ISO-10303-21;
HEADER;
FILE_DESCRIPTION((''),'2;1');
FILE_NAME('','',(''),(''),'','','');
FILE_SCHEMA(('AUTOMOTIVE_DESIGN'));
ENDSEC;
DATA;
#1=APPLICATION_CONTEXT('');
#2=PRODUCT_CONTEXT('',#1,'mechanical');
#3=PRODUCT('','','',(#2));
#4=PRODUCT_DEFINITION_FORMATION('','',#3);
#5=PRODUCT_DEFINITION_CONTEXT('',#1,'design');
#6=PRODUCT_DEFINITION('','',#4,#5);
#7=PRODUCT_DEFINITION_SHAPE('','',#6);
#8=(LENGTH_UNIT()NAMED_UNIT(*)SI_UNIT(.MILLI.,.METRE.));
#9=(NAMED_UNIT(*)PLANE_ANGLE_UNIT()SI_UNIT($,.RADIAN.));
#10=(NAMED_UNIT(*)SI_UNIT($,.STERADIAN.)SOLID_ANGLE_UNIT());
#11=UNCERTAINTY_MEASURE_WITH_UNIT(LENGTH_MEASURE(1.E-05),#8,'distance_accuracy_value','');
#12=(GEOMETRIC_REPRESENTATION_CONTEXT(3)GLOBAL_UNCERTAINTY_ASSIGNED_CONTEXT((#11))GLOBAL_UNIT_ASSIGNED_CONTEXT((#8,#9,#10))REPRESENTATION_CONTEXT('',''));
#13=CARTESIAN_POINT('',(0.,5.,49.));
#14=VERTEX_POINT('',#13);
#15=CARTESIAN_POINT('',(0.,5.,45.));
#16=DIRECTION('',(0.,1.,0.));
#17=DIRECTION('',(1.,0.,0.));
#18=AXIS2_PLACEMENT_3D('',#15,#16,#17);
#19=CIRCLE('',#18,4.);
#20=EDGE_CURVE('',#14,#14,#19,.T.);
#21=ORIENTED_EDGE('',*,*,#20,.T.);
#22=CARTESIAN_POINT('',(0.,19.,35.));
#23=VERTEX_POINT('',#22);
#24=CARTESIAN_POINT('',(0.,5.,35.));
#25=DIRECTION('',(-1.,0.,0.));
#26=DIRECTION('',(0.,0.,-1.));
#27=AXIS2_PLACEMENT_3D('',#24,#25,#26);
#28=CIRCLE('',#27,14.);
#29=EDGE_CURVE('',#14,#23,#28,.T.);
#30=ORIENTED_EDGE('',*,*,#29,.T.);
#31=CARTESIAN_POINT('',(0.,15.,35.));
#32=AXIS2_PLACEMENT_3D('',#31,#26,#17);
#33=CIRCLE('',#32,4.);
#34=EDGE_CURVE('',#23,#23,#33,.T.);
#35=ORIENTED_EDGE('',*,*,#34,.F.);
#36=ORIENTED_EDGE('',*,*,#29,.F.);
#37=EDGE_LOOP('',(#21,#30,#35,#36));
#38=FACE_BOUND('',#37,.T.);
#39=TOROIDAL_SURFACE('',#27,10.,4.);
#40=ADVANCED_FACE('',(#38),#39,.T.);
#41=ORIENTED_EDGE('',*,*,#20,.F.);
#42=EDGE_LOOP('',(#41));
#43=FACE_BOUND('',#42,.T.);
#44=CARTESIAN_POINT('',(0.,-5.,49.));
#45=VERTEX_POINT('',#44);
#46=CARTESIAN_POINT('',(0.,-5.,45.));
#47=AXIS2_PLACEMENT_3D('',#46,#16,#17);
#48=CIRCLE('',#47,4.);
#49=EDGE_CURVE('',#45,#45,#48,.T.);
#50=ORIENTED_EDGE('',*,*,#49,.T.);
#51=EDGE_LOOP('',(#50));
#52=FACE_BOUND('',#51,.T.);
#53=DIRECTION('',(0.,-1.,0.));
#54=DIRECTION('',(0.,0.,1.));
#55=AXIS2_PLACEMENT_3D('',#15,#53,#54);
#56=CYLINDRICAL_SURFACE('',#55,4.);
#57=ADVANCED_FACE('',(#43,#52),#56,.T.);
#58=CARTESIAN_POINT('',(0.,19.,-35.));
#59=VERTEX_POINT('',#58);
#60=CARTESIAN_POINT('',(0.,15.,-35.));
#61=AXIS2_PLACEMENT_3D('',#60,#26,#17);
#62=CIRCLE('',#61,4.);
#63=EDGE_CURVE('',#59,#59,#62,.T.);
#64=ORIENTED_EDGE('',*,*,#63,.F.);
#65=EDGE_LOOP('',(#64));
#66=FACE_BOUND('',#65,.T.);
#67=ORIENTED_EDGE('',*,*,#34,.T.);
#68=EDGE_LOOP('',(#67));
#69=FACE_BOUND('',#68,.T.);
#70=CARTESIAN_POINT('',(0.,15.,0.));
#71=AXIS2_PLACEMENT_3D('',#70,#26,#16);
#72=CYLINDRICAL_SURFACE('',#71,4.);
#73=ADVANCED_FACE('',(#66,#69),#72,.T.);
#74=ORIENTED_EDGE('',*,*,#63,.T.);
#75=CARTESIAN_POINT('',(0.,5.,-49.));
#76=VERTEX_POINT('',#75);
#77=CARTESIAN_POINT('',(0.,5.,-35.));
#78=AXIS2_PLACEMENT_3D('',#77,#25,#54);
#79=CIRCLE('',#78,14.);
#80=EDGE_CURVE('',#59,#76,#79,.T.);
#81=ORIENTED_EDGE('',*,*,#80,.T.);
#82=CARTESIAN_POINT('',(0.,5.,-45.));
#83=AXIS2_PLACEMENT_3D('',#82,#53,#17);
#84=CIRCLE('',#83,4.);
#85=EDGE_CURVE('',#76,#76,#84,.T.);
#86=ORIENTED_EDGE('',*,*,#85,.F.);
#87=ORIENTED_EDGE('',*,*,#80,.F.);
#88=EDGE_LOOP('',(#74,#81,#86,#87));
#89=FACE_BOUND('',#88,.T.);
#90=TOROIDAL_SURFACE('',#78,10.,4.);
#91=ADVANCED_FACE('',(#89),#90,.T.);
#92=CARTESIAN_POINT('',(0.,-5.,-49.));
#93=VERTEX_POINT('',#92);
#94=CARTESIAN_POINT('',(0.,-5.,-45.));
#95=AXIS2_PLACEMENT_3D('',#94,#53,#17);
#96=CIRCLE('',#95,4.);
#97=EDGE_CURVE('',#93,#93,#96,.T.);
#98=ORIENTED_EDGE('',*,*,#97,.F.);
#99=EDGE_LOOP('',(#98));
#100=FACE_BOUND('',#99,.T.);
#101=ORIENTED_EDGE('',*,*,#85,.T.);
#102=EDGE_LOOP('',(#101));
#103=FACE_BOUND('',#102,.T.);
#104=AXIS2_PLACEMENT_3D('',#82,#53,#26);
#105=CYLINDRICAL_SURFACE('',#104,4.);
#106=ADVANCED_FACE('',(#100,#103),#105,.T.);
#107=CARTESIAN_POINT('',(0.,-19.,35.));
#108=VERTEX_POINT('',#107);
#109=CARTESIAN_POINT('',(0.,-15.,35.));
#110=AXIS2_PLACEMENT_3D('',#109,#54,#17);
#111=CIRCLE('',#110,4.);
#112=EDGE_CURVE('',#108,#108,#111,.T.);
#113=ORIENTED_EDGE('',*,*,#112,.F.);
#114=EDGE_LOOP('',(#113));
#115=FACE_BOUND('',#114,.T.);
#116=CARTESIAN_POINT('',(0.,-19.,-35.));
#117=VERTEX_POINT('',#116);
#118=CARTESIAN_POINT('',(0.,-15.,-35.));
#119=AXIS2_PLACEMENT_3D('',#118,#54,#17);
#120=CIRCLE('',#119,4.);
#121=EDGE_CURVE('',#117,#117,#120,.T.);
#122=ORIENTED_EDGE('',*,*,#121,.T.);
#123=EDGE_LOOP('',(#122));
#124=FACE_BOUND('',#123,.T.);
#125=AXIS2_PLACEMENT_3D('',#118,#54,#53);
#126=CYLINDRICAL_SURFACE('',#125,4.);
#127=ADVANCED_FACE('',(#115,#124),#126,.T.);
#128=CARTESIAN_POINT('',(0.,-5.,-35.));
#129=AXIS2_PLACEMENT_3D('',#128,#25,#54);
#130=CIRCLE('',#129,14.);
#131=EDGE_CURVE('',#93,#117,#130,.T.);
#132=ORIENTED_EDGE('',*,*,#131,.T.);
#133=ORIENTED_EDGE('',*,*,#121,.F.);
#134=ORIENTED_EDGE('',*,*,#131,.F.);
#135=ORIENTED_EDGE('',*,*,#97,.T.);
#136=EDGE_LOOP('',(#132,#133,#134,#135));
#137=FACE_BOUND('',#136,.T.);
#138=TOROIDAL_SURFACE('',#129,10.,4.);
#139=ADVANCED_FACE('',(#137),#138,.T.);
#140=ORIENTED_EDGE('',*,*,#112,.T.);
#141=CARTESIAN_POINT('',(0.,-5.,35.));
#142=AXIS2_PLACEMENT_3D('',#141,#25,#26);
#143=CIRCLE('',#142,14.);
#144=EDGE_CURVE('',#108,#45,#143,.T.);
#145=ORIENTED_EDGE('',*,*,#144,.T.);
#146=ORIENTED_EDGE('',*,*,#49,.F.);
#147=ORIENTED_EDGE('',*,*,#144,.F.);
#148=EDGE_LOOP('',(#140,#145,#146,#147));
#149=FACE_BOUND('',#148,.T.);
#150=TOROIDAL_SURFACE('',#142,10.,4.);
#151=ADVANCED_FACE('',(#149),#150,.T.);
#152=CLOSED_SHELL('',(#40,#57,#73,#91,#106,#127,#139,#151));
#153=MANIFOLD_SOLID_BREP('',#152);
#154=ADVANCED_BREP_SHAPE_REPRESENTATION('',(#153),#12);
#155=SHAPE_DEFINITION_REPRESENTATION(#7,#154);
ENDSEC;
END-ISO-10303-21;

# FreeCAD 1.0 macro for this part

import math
import FreeCAD as App
import Part
import Sketcher

doc = App.newDocument("Part")
params = doc.addObject("Spreadsheet::Sheet", "Params")
for row, (alias, value) in enumerate([
    ("sketch1_diameter", "8 mm"),
    ("sketch2_radius", "10 mm"),
    ("sketch2_width", "10 mm"),
    ("sketch2_height", "35 mm"),
], start=1):
    params.set(f"A{row}", alias)
    params.set(f"B{row}", "=" + value)
    params.setAlias(f"B{row}", alias)

body = doc.addObject("PartDesign::Body", "Body")

# Sketch on XY plane
sketch1 = body.newObject("Sketcher::SketchObject", "Sketch")
sketch1.AttachmentSupport = (doc.getObject("XY_Plane"), [""])
sketch1.MapMode = "FlatFace"
sketch1.addGeometry(Part.Circle(App.Vector(0, -15, 0), App.Vector(0, 0, 1), 4), False)
sketch1.addConstraint(Sketcher.Constraint("PointOnObject", 0, 3, -2))
sketch1.addConstraint(Sketcher.Constraint("Diameter", 0, 8.0))
sketch1.addConstraint(Sketcher.Constraint("DistanceY", 0, 3, -1, 1, 15.0))
sketch1.setExpression("Constraints[1]", "Params.sketch1_diameter")

# Sketch on YZ plane
sketch2 = body.newObject("Sketcher::SketchObject", "Sketch001")
sketch2.AttachmentSupport = (doc.getObject("YZ_Plane"), [""])
sketch2.MapMode = "FlatFace"
sketch2.addGeometry(Part.LineSegment(App.Vector(-15, 0, 0), App.Vector(-15, -35, 0)), False)
sketch2.addGeometry(Part.ArcOfCircle(Part.Circle(App.Vector(-5, -35, 0), App.Vector(0, 0, 1), 10), math.radians(180), math.radians(270)), False)
sketch2.addGeometry(Part.LineSegment(App.Vector(-5, -45, 0), App.Vector(5, -45, 0)), False)
sketch2.addGeometry(Part.ArcOfCircle(Part.Circle(App.Vector(5, -35, 0), App.Vector(0, 0, 1), 10), math.radians(-90), math.radians(0)), False)
sketch2.addGeometry(Part.LineSegment(App.Vector(15, -35, 0), App.Vector(15, 0, 0)), False)
sketch2.addConstraint(Sketcher.Constraint("Tangent", 0, 2, 1, 1))
sketch2.addConstraint(Sketcher.Constraint("Tangent", 1, 2, 2, 1))
sketch2.addConstraint(Sketcher.Constraint("Tangent", 2, 2, 3, 1))
sketch2.addConstraint(Sketcher.Constraint("Tangent", 3, 2, 4, 1))
sketch2.addConstraint(Sketcher.Constraint("Vertical", 0))
sketch2.addConstraint(Sketcher.Constraint("Horizontal", 2))
sketch2.addConstraint(Sketcher.Constraint("Vertical", 4))
sketch2.addConstraint(Sketcher.Constraint("Equal", 1, 3))
sketch2.addConstraint(Sketcher.Constraint("Symmetric", 0, 1, 4, 2, -1, 1))
sketch2.addConstraint(Sketcher.Constraint("PointOnObject", 0, 1, -1))
sketch2.addConstraint(Sketcher.Constraint("Radius", 1, 10.0))
sketch2.addConstraint(Sketcher.Constraint("DistanceX", 2, 1, 2, 2, 10.0))
sketch2.addConstraint(Sketcher.Constraint("DistanceY", 0, 2, 0, 1, 35.0))
sketch2.setExpression("Constraints[10]", "Params.sketch2_radius")
sketch2.setExpression("Constraints[11]", "Params.sketch2_width")
sketch2.setExpression("Constraints[12]", "Params.sketch2_height")
doc.recompute()

additivepipe = body.newObject("PartDesign::AdditivePipe", "AdditivePipe")
additivepipe.Profile = sketch1
additivepipe.Spine = (sketch2, ["Edge1", "Edge2", "Edge3", "Edge4", "Edge5"])
body2 = doc.addObject("PartDesign::Body", "Body001")
doc.recompute()

body2.BaseFeature = body
doc.recompute()

mirroring = doc.addObject("Part::Mirroring", "Mirroring")
mirroring.Source = body
mirroring.Base = App.Vector(0, 15, 0)
mirroring.Normal = App.Vector(0, 0, 1)
body3 = doc.addObject("PartDesign::Body", "Body002")
body3.BaseFeature = mirroring
boolean = body2.newObject("PartDesign::Boolean", "Boolean")
boolean.Type = "Fuse"
boolean.addObjects([body3])
doc.recompute()
mirroring.Visibility = False

doc.recompute()
